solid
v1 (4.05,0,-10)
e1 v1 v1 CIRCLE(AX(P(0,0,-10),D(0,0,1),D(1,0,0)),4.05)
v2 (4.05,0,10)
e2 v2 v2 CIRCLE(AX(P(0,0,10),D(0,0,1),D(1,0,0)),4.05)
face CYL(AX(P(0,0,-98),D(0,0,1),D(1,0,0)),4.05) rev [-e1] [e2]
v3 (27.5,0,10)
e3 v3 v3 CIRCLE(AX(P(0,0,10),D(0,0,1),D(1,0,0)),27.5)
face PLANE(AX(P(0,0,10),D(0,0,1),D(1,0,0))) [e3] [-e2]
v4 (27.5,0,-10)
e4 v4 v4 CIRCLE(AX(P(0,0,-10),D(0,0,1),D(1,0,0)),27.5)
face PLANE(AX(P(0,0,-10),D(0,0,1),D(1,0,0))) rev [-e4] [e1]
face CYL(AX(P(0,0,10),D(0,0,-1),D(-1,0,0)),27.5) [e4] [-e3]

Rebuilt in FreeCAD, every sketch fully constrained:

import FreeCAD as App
import Part
import Sketcher
Q = App.Units.Quantity

doc = App.newDocument("Part")
body = doc.addObject("PartDesign::Body", "Body")

# Sketch on XY plane
sketch1 = body.newObject("Sketcher::SketchObject", "Sketch")
sketch1.AttachmentSupport = (doc.getObject("XY_Plane"), [""])
sketch1.MapMode = "FlatFace"
sketch1.addGeometry(Part.Circle(App.Vector(0, 0, 0), App.Vector(0, 0, 1), 28), False)
sketch1.addConstraint([
    Sketcher.Constraint("Coincident", 0, 3, -1, 1),
    Sketcher.Constraint("Diameter", 0, Q("55 mm")),
])
pad1 = body.newObject("PartDesign::Pad", "Pad")
pad1.Profile = sketch1
pad1.Length = 20
pad1.Midplane = True

# Sketch on XY plane
sketch2 = body.newObject("Sketcher::SketchObject", "Sketch001")
sketch2.AttachmentSupport = (doc.getObject("XY_Plane"), [""])
sketch2.MapMode = "FlatFace"
sketch2.AttachmentOffset = App.Placement(App.Vector(0, 0, 10), App.Rotation())
sketch2.addGeometry(Part.Circle(App.Vector(0, 0, 0), App.Vector(0, 0, 1), 4), False)
sketch2.addConstraint([
    Sketcher.Constraint("Coincident", 0, 3, -1, 1),
    Sketcher.Constraint("Diameter", 0, Q("8.1 mm")),
])
pocket1 = body.newObject("PartDesign::Pocket", "Pocket")
pocket1.Profile = sketch2
pocket1.Length = 108

doc.recompute()
